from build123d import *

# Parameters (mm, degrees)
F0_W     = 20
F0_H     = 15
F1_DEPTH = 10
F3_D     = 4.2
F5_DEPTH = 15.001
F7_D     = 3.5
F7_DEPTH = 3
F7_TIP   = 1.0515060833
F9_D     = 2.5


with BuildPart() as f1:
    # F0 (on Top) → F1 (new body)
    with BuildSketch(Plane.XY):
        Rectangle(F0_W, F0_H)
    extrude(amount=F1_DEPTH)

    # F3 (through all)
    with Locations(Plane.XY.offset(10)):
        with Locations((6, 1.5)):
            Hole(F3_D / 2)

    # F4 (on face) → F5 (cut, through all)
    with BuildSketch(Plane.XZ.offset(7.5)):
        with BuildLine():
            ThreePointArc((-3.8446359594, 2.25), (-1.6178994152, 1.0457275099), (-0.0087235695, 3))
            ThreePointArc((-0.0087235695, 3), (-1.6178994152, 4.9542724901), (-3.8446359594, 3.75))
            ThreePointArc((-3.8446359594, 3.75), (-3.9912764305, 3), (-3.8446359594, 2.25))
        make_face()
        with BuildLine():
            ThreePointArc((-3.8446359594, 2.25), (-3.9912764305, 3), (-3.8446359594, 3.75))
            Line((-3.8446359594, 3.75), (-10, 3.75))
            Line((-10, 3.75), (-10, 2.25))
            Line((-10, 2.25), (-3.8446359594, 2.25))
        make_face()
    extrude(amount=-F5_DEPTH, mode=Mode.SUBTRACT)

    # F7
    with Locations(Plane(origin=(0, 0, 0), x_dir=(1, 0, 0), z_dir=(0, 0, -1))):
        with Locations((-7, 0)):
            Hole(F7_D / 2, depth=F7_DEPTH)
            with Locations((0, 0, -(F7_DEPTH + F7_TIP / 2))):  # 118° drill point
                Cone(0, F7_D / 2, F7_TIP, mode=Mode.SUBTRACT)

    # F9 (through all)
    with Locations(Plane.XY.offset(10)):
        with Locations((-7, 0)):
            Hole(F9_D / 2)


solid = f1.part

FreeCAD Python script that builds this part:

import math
import FreeCAD as App
import Part
import Sketcher
from FreeCAD import Vector
Q = App.Units.Quantity


def add_polygon(sketch, points):
    """Adds a closed chain of lines whose ends are joined by coincident constraints."""
    first, n = sketch.GeometryCount, len(points)
    for a, b in zip(points, points[1:] + points[:1]):
        sketch.addGeometry(Part.LineSegment(App.Vector(*a, 0), App.Vector(*b, 0)), False)
    for i in range(n):
        sketch.addConstraint(Sketcher.Constraint("Coincident", first + i, 2, first + (i + 1) % n, 1))

doc = App.newDocument("Part")
params = doc.addObject("Spreadsheet::Sheet", "Params")
for row, (alias, value) in enumerate([
    ("sketch1_width", "20 mm"),
    ("sketch1_height", "15 mm"),
    ("pad1_length", "10 mm"),
    ("sketch2_diameter", "4.2 mm"),
    ("hole_diameter", "4.2 mm"),
    ("sketch3_height", "1.5 mm"),
    ("sketch4_diameter", "3.5 mm"),
    ("hole2_diameter", "3.5 mm"),
    ("hole2_depth", "3 mm"),
    ("sketch5_diameter", "2.5 mm"),
    ("hole3_diameter", "2.5 mm"),
], start=1):
    params.set(f"A{row}", alias)
    params.set(f"B{row}", "=" + value)
    params.setAlias(f"B{row}", alias)

body = doc.addObject("PartDesign::Body", "Body")

sketch1 = doc.addObject("Sketcher::SketchObject", "Sketch")
body.addObject(sketch1)
sketch1.AttachmentSupport = (doc.XY_Plane, [""])
sketch1.MapMode = "FlatFace"
add_polygon(sketch1, [(-10, 8), (-10, -8), (10, -8), (10, 8)])
sketch1.addConstraint(Sketcher.Constraint("Vertical", 0))
sketch1.addConstraint(Sketcher.Constraint("Horizontal", 1))
sketch1.addConstraint(Sketcher.Constraint("Vertical", 2))
sketch1.addConstraint(Sketcher.Constraint("Horizontal", 3))
sketch1.addConstraint(Sketcher.Constraint("Symmetric", 0, 2, 2, 2, -1, 1))
sketch1.addConstraint(Sketcher.Constraint("DistanceX", 1, 1, 1, 2, Q("20 mm")))
sketch1.addConstraint(Sketcher.Constraint("DistanceY", 0, 2, 0, 1, Q("15 mm")))
sketch1.setExpression("Constraints[9]", "Params.sketch1_width")
sketch1.setExpression("Constraints[10]", "Params.sketch1_height")
pad1 = doc.addObject("PartDesign::Pad", "Pad")
body.addObject(pad1)
pad1.Profile = sketch1
pad1.setExpression("Length", "Params.pad1_length")

sketch2 = doc.addObject("Sketcher::SketchObject", "Sketch001")
body.addObject(sketch2)
sketch2.AttachmentSupport = (doc.XY_Plane, [""])
sketch2.MapMode = "FlatFace"
sketch2.AttachmentOffset = App.Placement(Vector(0, 0, 10), App.Rotation())
sketch2.addGeometry(Part.Circle(Vector(6, 1.5, 0), Vector(0, 0, 1), 2.1), False)
sketch2.addConstraint(Sketcher.Constraint("Diameter", 0, Q("4.2 mm")))
sketch2.addConstraint(Sketcher.Constraint("DistanceX", -1, 1, 0, 3, Q("6 mm")))
sketch2.addConstraint(Sketcher.Constraint("DistanceY", -1, 1, 0, 3, Q("1.5 mm")))
sketch2.setExpression("Constraints[0]", "Params.sketch2_diameter")
doc.recompute()
hole = doc.addObject("PartDesign::Hole", "Hole")
body.addObject(hole)
hole.Profile = sketch2
hole.ThreadType = "None"
hole.setExpression("Diameter", "Params.hole_diameter")
hole.DepthType = "ThroughAll"

sketch3 = doc.addObject("Sketcher::SketchObject", "Sketch002")
body.addObject(sketch3)
sketch3.AttachmentSupport = (doc.XZ_Plane, [""])
sketch3.MapMode = "FlatFace"
sketch3.AttachmentOffset = App.Placement(Vector(0, 0, 7.5), App.Rotation())
sketch3.addGeometry(Part.ArcOfCircle(Part.Circle(Vector(-2, 3, 0), Vector(0, 0, 1), 2), math.radians(-158), math.radians(0)), False)
sketch3.addGeometry(Part.ArcOfCircle(Part.Circle(Vector(-2, 3, 0), Vector(0, 0, 1), 2), math.radians(0), math.radians(158)), False)
sketch3.addGeometry(Part.LineSegment(Vector(-3.8, 3.8, 0), Vector(-10, 3.8, 0)), False)
sketch3.addGeometry(Part.LineSegment(Vector(-10, 3.8, 0), Vector(-10, 2.2, 0)), False)
sketch3.addGeometry(Part.LineSegment(Vector(-10, 2.2, 0), Vector(-3.8, 2.2, 0)), False)
sketch3.addConstraint(Sketcher.Constraint("Tangent", 0, 2, 1, 1))
sketch3.addConstraint(Sketcher.Constraint("Coincident", 1, 2, 2, 1))
sketch3.addConstraint(Sketcher.Constraint("Coincident", 2, 2, 3, 1))
sketch3.addConstraint(Sketcher.Constraint("Coincident", 3, 2, 4, 1))
sketch3.addConstraint(Sketcher.Constraint("Coincident", 4, 2, 0, 1))
sketch3.addConstraint(Sketcher.Constraint("Horizontal", 2))
sketch3.addConstraint(Sketcher.Constraint("Vertical", 3))
sketch3.addConstraint(Sketcher.Constraint("Horizontal", 4))
sketch3.addConstraint(Sketcher.Constraint("Equal", 0, 1))
sketch3.addConstraint(Sketcher.Constraint("Horizontal", 1, 3, 0, 2))
sketch3.addConstraint(Sketcher.Constraint("Vertical", 1, 2, 4, 2))
sketch3.addConstraint(Sketcher.Constraint("DistanceY", 3, 2, 3, 1, Q("1.5 mm")))
sketch3.addConstraint(Sketcher.Constraint("DistanceX", 0, 3, -1, 1, Q("2 mm")))
sketch3.addConstraint(Sketcher.Constraint("DistanceY", -1, 1, 0, 3, Q("3 mm")))
sketch3.addConstraint(Sketcher.Constraint("DistanceX", 2, 2, -1, 1, Q("10 mm")))
sketch3.addConstraint(Sketcher.Constraint("Radius", 0, Q("1.991276 mm")))
sketch3.setExpression("Constraints[11]", "Params.sketch3_height")
pocket1 = doc.addObject("PartDesign::Pocket", "Pocket")
body.addObject(pocket1)
pocket1.Profile = sketch3
pocket1.Type = "ThroughAll"

sketch4 = doc.addObject("Sketcher::SketchObject", "Sketch003")
body.addObject(sketch4)
sketch4.AttachmentSupport = (doc.XY_Plane, [""])
sketch4.MapMode = "FlatFace"
sketch4.addGeometry(Part.Circle(Vector(-7, 0, 0), Vector(0, 0, 1), 1.8), False)
sketch4.addConstraint(Sketcher.Constraint("PointOnObject", 0, 3, -1))
sketch4.addConstraint(Sketcher.Constraint("Diameter", 0, Q("3.5 mm")))
sketch4.addConstraint(Sketcher.Constraint("DistanceX", 0, 3, -1, 1, Q("7 mm")))
sketch4.setExpression("Constraints[1]", "Params.sketch4_diameter")
doc.recompute()
hole2 = doc.addObject("PartDesign::Hole", "Hole001")
body.addObject(hole2)
hole2.Profile = sketch4
hole2.ThreadType = "None"
hole2.setExpression("Diameter", "Params.hole2_diameter")
hole2.DepthType = "Dimension"
hole2.setExpression("Depth", "Params.hole2_depth")
hole2.DrillPoint = "Angled"
hole2.DrillPointAngle = 118
hole2.Reversed = True

sketch5 = doc.addObject("Sketcher::SketchObject", "Sketch004")
body.addObject(sketch5)
sketch5.AttachmentSupport = (doc.XY_Plane, [""])
sketch5.MapMode = "FlatFace"
sketch5.AttachmentOffset = App.Placement(Vector(0, 0, 10), App.Rotation())
sketch5.addGeometry(Part.Circle(Vector(-7, 0, 0), Vector(0, 0, 1), 1.2), False)
sketch5.addConstraint(Sketcher.Constraint("PointOnObject", 0, 3, -1))
sketch5.addConstraint(Sketcher.Constraint("Diameter", 0, Q("2.5 mm")))
sketch5.addConstraint(Sketcher.Constraint("DistanceX", 0, 3, -1, 1, Q("7 mm")))
sketch5.setExpression("Constraints[1]", "Params.sketch5_diameter")
doc.recompute()
hole3 = doc.addObject("PartDesign::Hole", "Hole002")
body.addObject(hole3)
hole3.Profile = sketch5
hole3.ThreadType = "None"
hole3.setExpression("Diameter", "Params.hole3_diameter")
hole3.DepthType = "ThroughAll"

doc.recompute()
